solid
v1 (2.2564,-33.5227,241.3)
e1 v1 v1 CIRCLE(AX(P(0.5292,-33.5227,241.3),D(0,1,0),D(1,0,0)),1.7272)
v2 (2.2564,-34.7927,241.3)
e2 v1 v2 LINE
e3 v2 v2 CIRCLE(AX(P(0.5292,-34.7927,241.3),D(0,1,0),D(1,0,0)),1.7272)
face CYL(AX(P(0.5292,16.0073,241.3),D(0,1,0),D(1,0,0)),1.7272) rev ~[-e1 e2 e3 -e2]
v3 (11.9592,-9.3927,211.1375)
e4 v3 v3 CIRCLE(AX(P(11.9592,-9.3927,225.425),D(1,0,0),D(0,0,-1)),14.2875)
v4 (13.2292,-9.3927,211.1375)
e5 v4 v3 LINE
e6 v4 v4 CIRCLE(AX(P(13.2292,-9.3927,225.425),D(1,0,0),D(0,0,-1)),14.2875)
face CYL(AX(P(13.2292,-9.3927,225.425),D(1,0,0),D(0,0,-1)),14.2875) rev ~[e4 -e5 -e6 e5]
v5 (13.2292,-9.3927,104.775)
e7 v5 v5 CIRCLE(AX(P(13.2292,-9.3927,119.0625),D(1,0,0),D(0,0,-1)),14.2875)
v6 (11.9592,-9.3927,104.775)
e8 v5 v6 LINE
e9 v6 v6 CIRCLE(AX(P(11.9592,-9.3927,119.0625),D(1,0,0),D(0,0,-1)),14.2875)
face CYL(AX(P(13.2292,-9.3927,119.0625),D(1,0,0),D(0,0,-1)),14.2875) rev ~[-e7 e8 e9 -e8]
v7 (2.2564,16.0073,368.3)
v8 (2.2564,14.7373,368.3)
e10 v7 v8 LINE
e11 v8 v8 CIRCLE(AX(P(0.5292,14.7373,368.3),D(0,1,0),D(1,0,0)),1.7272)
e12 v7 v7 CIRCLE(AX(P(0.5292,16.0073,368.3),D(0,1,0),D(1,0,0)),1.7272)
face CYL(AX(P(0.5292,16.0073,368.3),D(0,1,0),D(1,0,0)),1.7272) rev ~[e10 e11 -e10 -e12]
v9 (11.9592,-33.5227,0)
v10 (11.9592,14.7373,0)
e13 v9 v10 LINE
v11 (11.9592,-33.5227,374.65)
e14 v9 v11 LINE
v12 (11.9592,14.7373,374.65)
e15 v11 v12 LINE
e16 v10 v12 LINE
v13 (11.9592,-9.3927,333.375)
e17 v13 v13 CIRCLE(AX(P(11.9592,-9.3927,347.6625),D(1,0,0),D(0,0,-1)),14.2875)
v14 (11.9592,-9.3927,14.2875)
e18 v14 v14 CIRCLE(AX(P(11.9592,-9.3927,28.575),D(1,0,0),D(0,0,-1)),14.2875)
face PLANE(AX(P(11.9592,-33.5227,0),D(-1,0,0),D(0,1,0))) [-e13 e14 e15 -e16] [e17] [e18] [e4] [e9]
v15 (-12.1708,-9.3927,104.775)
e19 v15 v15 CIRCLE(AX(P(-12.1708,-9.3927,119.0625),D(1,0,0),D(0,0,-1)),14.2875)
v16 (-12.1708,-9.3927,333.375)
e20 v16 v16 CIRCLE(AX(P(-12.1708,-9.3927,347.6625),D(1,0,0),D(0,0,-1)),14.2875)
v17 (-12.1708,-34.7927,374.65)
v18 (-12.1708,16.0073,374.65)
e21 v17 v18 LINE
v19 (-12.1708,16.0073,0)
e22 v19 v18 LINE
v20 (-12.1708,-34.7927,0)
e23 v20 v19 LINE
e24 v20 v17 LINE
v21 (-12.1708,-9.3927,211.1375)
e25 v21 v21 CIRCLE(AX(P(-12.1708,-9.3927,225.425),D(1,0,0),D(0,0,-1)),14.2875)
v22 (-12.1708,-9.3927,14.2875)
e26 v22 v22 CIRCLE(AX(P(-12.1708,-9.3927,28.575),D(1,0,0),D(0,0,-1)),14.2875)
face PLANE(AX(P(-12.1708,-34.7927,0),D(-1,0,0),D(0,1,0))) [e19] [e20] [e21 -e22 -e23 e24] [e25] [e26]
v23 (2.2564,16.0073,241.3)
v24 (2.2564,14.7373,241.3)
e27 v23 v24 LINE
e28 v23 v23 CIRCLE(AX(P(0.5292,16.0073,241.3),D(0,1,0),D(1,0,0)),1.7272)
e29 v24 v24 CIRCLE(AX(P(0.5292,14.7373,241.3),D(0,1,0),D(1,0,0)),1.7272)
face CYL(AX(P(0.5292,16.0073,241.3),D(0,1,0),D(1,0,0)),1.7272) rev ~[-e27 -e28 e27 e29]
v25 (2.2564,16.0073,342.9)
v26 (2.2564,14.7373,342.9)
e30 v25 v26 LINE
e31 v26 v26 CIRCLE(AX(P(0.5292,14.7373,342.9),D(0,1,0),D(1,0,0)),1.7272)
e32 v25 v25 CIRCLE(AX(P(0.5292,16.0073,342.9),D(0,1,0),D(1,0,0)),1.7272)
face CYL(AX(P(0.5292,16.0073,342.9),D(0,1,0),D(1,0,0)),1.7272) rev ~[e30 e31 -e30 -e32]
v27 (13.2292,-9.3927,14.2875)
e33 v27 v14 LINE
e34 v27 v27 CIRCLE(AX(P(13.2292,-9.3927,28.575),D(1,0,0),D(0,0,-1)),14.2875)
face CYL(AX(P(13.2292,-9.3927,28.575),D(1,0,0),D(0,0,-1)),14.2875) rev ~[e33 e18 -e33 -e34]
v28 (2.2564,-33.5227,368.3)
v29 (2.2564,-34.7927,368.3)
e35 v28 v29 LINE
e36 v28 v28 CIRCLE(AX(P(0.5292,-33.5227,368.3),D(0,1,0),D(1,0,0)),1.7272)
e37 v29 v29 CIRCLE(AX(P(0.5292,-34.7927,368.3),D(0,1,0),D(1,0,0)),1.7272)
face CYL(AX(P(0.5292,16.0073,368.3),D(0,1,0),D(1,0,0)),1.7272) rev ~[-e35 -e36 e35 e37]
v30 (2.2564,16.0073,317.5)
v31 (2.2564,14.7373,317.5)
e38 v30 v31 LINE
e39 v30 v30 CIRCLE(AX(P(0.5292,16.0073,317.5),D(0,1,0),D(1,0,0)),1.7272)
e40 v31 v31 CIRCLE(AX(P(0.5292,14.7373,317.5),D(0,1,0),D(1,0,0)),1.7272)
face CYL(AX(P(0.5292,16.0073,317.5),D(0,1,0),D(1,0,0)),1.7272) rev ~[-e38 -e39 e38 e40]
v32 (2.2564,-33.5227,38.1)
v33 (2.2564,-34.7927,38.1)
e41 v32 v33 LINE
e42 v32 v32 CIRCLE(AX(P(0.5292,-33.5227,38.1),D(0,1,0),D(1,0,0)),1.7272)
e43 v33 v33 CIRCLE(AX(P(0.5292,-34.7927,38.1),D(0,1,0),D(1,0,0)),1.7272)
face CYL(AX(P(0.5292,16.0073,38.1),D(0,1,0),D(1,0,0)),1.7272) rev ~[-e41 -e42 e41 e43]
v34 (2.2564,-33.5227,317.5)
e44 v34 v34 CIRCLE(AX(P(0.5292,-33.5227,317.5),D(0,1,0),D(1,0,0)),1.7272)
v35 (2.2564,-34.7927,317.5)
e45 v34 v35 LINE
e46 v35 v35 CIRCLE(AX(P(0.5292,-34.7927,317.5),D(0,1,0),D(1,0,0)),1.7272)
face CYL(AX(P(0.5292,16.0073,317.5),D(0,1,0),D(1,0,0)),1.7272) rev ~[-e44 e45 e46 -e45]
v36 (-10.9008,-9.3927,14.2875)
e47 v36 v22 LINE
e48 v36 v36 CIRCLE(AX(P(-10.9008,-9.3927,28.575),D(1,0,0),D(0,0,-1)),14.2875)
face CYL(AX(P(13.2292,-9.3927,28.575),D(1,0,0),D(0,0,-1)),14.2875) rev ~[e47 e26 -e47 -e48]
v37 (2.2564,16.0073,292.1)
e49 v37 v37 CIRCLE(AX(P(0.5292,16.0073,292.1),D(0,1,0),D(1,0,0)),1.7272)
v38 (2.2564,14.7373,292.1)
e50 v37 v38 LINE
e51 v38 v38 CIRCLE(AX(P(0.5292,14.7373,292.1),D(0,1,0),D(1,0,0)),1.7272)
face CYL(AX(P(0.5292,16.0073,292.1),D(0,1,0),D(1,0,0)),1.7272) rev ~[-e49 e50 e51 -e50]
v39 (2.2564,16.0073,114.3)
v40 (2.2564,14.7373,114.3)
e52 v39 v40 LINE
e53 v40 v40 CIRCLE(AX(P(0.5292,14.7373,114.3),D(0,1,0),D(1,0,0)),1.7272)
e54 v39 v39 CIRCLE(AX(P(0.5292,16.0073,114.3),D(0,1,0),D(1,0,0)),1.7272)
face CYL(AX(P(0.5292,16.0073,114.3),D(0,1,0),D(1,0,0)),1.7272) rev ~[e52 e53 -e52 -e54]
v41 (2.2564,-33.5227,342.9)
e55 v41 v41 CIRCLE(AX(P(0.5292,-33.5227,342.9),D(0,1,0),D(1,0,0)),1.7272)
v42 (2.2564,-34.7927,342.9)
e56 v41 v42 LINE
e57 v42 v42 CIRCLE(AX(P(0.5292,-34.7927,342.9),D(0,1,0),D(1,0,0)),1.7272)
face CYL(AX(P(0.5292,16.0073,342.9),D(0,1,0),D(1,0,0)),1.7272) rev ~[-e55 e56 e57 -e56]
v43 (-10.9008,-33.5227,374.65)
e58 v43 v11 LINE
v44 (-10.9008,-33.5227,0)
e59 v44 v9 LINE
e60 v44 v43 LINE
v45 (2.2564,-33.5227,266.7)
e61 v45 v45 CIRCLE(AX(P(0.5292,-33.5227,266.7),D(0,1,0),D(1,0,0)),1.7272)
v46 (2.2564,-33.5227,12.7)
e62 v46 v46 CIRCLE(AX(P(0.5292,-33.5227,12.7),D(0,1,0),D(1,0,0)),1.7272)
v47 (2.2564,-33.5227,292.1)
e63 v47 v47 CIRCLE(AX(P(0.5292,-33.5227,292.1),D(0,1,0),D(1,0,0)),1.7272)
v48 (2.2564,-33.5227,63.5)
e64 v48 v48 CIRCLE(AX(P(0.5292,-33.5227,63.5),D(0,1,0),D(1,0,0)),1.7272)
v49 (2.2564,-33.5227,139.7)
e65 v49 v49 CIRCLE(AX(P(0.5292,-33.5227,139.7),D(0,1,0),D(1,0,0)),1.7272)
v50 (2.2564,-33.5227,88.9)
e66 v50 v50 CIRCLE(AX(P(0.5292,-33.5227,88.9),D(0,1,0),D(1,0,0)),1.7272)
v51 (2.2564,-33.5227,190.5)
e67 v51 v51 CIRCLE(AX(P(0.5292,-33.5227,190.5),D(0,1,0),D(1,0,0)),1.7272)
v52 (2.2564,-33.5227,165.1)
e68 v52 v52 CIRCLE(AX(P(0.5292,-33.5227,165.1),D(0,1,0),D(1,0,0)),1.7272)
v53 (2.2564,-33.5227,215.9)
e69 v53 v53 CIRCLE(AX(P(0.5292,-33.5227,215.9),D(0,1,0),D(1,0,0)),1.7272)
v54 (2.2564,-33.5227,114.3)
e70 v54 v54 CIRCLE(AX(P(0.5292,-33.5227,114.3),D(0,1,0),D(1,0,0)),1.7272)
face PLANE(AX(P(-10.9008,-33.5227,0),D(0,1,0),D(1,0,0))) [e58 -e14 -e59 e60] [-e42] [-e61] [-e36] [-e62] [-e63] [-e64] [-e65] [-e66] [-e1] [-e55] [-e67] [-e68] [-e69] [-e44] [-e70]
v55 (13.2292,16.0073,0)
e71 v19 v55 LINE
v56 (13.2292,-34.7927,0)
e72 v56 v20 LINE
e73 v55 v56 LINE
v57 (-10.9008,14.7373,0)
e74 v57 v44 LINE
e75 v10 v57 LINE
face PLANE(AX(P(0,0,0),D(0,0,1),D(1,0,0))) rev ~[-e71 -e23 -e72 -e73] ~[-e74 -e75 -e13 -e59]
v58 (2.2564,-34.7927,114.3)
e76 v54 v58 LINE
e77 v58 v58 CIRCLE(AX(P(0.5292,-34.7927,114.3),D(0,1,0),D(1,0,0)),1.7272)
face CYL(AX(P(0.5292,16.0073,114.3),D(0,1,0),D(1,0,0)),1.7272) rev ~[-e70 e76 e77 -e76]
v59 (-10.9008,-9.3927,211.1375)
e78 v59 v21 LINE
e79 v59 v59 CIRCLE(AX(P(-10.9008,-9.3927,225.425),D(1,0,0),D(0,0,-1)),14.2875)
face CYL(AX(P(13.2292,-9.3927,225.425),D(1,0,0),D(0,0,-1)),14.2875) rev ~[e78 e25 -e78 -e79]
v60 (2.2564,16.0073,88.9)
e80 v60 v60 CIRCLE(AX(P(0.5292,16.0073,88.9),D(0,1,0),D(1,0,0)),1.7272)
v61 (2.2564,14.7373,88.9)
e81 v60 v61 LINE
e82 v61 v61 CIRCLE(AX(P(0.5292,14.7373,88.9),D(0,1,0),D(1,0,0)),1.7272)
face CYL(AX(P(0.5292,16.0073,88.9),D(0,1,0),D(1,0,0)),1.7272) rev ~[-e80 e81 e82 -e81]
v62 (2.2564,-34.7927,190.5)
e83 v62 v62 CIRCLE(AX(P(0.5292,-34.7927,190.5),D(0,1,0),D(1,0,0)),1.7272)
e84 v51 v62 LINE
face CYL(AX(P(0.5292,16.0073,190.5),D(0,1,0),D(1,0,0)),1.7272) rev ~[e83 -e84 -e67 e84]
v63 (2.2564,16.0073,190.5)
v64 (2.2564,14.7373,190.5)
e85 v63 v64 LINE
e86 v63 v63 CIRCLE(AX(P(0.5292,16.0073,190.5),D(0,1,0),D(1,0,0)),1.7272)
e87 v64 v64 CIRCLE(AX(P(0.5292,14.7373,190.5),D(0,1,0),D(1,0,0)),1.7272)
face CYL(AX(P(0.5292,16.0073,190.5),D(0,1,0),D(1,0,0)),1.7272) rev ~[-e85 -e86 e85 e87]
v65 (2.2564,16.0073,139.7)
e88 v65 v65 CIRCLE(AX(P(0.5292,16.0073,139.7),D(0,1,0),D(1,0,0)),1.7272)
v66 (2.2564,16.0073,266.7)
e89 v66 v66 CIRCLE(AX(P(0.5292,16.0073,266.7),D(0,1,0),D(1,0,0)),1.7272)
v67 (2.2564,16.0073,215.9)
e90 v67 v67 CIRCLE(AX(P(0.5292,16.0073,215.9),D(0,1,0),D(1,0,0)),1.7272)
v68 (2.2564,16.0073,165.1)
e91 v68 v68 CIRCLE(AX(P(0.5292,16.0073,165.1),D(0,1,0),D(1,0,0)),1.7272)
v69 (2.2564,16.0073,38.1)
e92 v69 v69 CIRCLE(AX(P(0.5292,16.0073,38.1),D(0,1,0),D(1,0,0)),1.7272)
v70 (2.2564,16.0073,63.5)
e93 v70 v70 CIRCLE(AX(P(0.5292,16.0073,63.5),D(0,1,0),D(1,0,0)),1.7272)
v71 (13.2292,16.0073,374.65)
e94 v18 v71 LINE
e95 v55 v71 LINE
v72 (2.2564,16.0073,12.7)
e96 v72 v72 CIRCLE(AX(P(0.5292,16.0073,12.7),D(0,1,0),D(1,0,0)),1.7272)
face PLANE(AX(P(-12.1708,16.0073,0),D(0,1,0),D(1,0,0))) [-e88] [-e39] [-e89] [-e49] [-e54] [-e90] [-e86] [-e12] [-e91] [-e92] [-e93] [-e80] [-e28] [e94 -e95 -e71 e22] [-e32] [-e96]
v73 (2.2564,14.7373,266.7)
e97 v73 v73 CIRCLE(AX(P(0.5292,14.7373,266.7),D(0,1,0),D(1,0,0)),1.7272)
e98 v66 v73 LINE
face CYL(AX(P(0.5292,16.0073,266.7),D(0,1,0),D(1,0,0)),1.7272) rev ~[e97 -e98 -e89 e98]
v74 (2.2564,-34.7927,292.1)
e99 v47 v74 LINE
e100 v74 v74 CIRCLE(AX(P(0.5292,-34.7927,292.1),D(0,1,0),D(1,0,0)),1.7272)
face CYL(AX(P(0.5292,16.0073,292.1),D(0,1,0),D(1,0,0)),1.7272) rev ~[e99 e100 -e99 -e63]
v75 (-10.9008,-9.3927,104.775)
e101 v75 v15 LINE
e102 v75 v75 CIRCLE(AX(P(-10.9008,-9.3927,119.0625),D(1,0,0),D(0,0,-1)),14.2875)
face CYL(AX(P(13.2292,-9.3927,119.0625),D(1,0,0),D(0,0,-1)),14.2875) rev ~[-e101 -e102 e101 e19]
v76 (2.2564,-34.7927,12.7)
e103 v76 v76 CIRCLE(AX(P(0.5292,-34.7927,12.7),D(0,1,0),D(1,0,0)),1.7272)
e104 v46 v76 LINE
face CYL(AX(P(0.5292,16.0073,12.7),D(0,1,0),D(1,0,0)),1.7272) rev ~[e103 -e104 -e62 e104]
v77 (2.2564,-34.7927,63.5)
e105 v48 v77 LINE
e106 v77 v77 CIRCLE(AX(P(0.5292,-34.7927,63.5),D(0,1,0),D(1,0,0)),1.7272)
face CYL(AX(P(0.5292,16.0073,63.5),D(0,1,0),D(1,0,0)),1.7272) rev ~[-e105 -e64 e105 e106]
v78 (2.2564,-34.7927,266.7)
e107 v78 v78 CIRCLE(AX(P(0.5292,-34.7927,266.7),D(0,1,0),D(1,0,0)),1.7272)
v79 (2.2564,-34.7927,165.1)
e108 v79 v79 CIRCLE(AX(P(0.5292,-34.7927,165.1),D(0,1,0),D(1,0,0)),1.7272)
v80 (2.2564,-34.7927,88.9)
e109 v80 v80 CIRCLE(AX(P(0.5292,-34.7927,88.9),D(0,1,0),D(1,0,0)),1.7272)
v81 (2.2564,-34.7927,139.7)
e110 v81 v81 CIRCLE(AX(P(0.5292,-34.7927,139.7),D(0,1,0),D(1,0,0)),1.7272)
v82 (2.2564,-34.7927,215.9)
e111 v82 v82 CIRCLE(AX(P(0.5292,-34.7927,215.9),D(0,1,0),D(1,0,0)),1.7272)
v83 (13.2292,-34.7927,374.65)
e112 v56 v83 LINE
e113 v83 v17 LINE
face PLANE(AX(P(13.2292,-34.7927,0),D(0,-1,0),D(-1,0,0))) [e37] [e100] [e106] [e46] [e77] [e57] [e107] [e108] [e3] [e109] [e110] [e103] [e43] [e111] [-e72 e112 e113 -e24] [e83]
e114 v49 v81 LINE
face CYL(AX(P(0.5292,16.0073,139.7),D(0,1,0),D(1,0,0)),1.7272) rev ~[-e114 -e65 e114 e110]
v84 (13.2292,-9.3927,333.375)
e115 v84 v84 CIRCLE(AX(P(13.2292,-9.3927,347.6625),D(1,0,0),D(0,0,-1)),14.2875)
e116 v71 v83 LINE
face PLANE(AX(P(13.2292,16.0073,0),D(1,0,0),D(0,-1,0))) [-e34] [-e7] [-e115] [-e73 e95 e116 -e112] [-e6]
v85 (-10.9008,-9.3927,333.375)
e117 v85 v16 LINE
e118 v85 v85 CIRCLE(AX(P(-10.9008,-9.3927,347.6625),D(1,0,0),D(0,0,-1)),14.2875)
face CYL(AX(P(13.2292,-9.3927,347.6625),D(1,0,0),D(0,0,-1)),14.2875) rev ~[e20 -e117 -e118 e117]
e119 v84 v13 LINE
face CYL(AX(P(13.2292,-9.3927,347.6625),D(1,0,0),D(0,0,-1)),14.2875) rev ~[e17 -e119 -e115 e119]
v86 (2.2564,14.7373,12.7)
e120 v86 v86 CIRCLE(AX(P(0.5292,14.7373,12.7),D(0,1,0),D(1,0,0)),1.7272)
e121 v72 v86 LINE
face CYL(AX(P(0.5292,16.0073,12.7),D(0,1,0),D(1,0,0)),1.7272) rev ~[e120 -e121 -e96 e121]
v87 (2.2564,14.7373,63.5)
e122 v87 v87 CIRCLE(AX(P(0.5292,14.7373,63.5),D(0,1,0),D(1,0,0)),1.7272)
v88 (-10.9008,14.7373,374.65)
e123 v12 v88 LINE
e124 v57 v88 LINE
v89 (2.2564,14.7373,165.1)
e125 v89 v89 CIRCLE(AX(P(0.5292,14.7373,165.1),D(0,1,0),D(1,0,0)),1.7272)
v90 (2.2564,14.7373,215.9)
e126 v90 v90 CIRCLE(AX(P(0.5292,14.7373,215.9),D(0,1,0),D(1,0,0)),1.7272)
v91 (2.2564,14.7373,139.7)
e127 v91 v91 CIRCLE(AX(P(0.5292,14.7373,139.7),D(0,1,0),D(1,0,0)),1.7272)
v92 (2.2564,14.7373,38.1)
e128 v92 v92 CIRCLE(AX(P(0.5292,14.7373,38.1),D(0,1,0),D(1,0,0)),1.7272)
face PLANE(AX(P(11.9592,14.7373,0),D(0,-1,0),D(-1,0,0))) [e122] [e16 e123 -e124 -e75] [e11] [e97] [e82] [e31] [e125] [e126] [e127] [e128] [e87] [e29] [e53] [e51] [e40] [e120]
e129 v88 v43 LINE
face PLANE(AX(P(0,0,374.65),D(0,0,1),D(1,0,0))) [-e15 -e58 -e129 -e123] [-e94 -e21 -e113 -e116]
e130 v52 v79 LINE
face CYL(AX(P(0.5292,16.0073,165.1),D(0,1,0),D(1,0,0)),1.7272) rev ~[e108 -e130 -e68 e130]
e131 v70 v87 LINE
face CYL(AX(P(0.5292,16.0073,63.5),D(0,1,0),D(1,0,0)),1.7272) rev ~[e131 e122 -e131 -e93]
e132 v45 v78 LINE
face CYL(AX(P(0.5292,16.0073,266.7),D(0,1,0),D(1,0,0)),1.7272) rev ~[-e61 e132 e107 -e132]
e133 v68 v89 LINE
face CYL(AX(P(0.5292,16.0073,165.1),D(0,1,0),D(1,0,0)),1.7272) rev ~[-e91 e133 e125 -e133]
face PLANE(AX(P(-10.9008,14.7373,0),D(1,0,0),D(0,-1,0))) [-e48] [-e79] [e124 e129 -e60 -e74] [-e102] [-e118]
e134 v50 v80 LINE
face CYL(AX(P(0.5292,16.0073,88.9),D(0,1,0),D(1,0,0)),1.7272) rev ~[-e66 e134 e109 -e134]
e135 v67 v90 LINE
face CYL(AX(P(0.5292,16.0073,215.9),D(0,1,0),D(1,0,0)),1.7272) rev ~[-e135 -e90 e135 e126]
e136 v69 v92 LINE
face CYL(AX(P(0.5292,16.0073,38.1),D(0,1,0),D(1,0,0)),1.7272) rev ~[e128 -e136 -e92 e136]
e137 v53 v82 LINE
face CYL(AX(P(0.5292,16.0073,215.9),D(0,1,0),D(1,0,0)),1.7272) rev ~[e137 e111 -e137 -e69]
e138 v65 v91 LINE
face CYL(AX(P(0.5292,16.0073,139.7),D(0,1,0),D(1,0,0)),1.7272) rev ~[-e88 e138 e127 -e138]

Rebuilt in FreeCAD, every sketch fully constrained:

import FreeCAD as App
import Part
import Sketcher
Q = App.Units.Quantity

doc = App.newDocument("Part")
body = doc.addObject("PartDesign::Body", "Body")

# Sketch on XY plane
sketch1 = body.newObject("Sketcher::SketchObject", "Sketch")
sketch1.AttachmentSupport = (doc.getObject("XY_Plane"), [""])
sketch1.MapMode = "FlatFace"
sketch1.addGeometry(Part.LineSegment(App.Vector(13, 16, 0), App.Vector(-12, 16, 0)), False)
sketch1.addGeometry(Part.LineSegment(App.Vector(-12, 16, 0), App.Vector(-12, -35, 0)), False)
sketch1.addGeometry(Part.LineSegment(App.Vector(-12, -35, 0), App.Vector(13, -35, 0)), False)
sketch1.addGeometry(Part.LineSegment(App.Vector(13, -35, 0), App.Vector(13, 16, 0)), False)
sketch1.addGeometry(Part.LineSegment(App.Vector(-11, 15, 0), App.Vector(12, 15, 0)), False)
sketch1.addGeometry(Part.LineSegment(App.Vector(12, 15, 0), App.Vector(12, -34, 0)), False)
sketch1.addGeometry(Part.LineSegment(App.Vector(12, -34, 0), App.Vector(-11, -34, 0)), False)
sketch1.addGeometry(Part.LineSegment(App.Vector(-11, -34, 0), App.Vector(-11, 15, 0)), False)
sketch1.addConstraint(Sketcher.Constraint("Coincident", 0, 2, 1, 1))
sketch1.addConstraint(Sketcher.Constraint("Coincident", 1, 2, 2, 1))
sketch1.addConstraint(Sketcher.Constraint("Coincident", 2, 2, 3, 1))
sketch1.addConstraint(Sketcher.Constraint("Coincident", 3, 2, 0, 1))
sketch1.addConstraint(Sketcher.Constraint("Coincident", 4, 2, 5, 1))
sketch1.addConstraint(Sketcher.Constraint("Coincident", 5, 2, 6, 1))
sketch1.addConstraint(Sketcher.Constraint("Coincident", 6, 2, 7, 1))
sketch1.addConstraint(Sketcher.Constraint("Coincident", 7, 2, 4, 1))
sketch1.addConstraint(Sketcher.Constraint("Horizontal", 0))
sketch1.addConstraint(Sketcher.Constraint("Vertical", 1))
sketch1.addConstraint(Sketcher.Constraint("Horizontal", 2))
sketch1.addConstraint(Sketcher.Constraint("Vertical", 3))
sketch1.addConstraint(Sketcher.Constraint("Horizontal", 4))
sketch1.addConstraint(Sketcher.Constraint("Vertical", 5))
sketch1.addConstraint(Sketcher.Constraint("Horizontal", 6))
sketch1.addConstraint(Sketcher.Constraint("Vertical", 7))
sketch1.addConstraint(Sketcher.Constraint("DistanceX", 0, 2, 0, 1, Q("1 in")))
sketch1.addConstraint(Sketcher.Constraint("DistanceY", 1, 2, 1, 1, Q("2 in")))
sketch1.addConstraint(Sketcher.Constraint("DistanceX", 4, 2, 3, 2, Q("0.05 in")))
sketch1.addConstraint(Sketcher.Constraint("DistanceY", 4, 2, 3, 2, Q("0.05 in")))
sketch1.addConstraint(Sketcher.Constraint("DistanceY", 2, 2, 5, 2, Q("0.05 in")))
sketch1.addConstraint(Sketcher.Constraint("DistanceX", 1, 2, 6, 2, Q("0.05 in")))
sketch1.addConstraint(Sketcher.Constraint("DistanceY", -1, 1, 0, 2, Q("0.6302 in")))
sketch1.addConstraint(Sketcher.Constraint("DistanceX", 0, 2, -1, 1, Q("12.1708 mm")))
pad1 = body.newObject("PartDesign::Pad", "Pad")
pad1.Profile = sketch1
pad1.Length = Q("14.75 in")

# Sketch on XZ plane
sketch2 = body.newObject("Sketcher::SketchObject", "Sketch001")
sketch2.AttachmentSupport = (doc.getObject("XZ_Plane"), [""])
sketch2.MapMode = "FlatFace"
sketch2.AttachmentOffset = App.Placement(App.Vector(0, 0, -0.6302087 * 25.4), App.Rotation())
sketch2.addGeometry(Part.Circle(App.Vector(0.5, 12.7, 0), App.Vector(0, 0, 1), 1.7), False)
sketch2.addConstraint(Sketcher.Constraint("Diameter", 0, Q("0.136 in")))
sketch2.addConstraint(Sketcher.Constraint("DistanceY", -1, 1, 0, 3, Q("0.5 in")))
sketch2.addConstraint(Sketcher.Constraint("DistanceX", -1, 1, 0, 3, Q("0.5292 mm")))
pocket1 = body.newObject("PartDesign::Pocket", "Pocket")
pocket1.Profile = sketch2
pocket1.Type = "ThroughAll"
pocket1.Reversed = True
doc.recompute()

linearpattern = body.newObject("PartDesign::LinearPattern", "LinearPattern")
linearpattern.Originals = [pocket1]
linearpattern.Direction = (doc.getObject("Z_Axis"), [""])
linearpattern.Mode = "offset"
linearpattern.Offset = Q("1 in")
linearpattern.Occurrences = 37
body.Tip = linearpattern

# Sketch on YZ plane
sketch3 = body.newObject("Sketcher::SketchObject", "Sketch002")
sketch3.AttachmentSupport = (doc.getObject("YZ_Plane"), [""])
sketch3.MapMode = "FlatFace"
sketch3.AttachmentOffset = App.Placement(App.Vector(0, 0, 13.2292), App.Rotation())
sketch3.addGeometry(Part.Circle(App.Vector(-9, 348, 0), App.Vector(0, 0, 1), 14), False)
sketch3.addGeometry(Part.Circle(App.Vector(-9, 225, 0), App.Vector(0, 0, 1), 14), False)
sketch3.addGeometry(Part.Circle(App.Vector(-9, 29, 0), App.Vector(0, 0, 1), 14), False)
sketch3.addGeometry(Part.Circle(App.Vector(-9, 119, 0), App.Vector(0, 0, 1), 14), False)
sketch3.addConstraint(Sketcher.Constraint("Equal", 0, 1))
sketch3.addConstraint(Sketcher.Constraint("Equal", 1, 2))
sketch3.addConstraint(Sketcher.Constraint("Equal", 2, 3))
sketch3.addConstraint(Sketcher.Constraint("Vertical", 0, 3, 1, 3))
sketch3.addConstraint(Sketcher.Constraint("Vertical", 1, 3, 2, 3))
sketch3.addConstraint(Sketcher.Constraint("Vertical", 2, 3, 3, 3))
sketch3.addConstraint(Sketcher.Constraint("Diameter", 0, Q("1.125 in")))
sketch3.addConstraint(Sketcher.Constraint("DistanceY", -1, 1, 2, 3, Q("1.125 in")))
sketch3.addConstraint(Sketcher.Constraint("DistanceY", 3, 3, 0, 3, Q("9 in")))
sketch3.addConstraint(Sketcher.Constraint("DistanceY", 2, 3, 1, 3, Q("7.75 in")))
sketch3.addConstraint(Sketcher.Constraint("DistanceY", -1, 1, 0, 3, Q("13.6875 in")))
sketch3.addConstraint(Sketcher.Constraint("DistanceX", 0, 3, -1, 1, Q("0.3698 in")))
pocket2 = body.newObject("PartDesign::Pocket", "Pocket001")
pocket2.Profile = sketch3
pocket2.Type = "ThroughAll"

doc.recompute()
